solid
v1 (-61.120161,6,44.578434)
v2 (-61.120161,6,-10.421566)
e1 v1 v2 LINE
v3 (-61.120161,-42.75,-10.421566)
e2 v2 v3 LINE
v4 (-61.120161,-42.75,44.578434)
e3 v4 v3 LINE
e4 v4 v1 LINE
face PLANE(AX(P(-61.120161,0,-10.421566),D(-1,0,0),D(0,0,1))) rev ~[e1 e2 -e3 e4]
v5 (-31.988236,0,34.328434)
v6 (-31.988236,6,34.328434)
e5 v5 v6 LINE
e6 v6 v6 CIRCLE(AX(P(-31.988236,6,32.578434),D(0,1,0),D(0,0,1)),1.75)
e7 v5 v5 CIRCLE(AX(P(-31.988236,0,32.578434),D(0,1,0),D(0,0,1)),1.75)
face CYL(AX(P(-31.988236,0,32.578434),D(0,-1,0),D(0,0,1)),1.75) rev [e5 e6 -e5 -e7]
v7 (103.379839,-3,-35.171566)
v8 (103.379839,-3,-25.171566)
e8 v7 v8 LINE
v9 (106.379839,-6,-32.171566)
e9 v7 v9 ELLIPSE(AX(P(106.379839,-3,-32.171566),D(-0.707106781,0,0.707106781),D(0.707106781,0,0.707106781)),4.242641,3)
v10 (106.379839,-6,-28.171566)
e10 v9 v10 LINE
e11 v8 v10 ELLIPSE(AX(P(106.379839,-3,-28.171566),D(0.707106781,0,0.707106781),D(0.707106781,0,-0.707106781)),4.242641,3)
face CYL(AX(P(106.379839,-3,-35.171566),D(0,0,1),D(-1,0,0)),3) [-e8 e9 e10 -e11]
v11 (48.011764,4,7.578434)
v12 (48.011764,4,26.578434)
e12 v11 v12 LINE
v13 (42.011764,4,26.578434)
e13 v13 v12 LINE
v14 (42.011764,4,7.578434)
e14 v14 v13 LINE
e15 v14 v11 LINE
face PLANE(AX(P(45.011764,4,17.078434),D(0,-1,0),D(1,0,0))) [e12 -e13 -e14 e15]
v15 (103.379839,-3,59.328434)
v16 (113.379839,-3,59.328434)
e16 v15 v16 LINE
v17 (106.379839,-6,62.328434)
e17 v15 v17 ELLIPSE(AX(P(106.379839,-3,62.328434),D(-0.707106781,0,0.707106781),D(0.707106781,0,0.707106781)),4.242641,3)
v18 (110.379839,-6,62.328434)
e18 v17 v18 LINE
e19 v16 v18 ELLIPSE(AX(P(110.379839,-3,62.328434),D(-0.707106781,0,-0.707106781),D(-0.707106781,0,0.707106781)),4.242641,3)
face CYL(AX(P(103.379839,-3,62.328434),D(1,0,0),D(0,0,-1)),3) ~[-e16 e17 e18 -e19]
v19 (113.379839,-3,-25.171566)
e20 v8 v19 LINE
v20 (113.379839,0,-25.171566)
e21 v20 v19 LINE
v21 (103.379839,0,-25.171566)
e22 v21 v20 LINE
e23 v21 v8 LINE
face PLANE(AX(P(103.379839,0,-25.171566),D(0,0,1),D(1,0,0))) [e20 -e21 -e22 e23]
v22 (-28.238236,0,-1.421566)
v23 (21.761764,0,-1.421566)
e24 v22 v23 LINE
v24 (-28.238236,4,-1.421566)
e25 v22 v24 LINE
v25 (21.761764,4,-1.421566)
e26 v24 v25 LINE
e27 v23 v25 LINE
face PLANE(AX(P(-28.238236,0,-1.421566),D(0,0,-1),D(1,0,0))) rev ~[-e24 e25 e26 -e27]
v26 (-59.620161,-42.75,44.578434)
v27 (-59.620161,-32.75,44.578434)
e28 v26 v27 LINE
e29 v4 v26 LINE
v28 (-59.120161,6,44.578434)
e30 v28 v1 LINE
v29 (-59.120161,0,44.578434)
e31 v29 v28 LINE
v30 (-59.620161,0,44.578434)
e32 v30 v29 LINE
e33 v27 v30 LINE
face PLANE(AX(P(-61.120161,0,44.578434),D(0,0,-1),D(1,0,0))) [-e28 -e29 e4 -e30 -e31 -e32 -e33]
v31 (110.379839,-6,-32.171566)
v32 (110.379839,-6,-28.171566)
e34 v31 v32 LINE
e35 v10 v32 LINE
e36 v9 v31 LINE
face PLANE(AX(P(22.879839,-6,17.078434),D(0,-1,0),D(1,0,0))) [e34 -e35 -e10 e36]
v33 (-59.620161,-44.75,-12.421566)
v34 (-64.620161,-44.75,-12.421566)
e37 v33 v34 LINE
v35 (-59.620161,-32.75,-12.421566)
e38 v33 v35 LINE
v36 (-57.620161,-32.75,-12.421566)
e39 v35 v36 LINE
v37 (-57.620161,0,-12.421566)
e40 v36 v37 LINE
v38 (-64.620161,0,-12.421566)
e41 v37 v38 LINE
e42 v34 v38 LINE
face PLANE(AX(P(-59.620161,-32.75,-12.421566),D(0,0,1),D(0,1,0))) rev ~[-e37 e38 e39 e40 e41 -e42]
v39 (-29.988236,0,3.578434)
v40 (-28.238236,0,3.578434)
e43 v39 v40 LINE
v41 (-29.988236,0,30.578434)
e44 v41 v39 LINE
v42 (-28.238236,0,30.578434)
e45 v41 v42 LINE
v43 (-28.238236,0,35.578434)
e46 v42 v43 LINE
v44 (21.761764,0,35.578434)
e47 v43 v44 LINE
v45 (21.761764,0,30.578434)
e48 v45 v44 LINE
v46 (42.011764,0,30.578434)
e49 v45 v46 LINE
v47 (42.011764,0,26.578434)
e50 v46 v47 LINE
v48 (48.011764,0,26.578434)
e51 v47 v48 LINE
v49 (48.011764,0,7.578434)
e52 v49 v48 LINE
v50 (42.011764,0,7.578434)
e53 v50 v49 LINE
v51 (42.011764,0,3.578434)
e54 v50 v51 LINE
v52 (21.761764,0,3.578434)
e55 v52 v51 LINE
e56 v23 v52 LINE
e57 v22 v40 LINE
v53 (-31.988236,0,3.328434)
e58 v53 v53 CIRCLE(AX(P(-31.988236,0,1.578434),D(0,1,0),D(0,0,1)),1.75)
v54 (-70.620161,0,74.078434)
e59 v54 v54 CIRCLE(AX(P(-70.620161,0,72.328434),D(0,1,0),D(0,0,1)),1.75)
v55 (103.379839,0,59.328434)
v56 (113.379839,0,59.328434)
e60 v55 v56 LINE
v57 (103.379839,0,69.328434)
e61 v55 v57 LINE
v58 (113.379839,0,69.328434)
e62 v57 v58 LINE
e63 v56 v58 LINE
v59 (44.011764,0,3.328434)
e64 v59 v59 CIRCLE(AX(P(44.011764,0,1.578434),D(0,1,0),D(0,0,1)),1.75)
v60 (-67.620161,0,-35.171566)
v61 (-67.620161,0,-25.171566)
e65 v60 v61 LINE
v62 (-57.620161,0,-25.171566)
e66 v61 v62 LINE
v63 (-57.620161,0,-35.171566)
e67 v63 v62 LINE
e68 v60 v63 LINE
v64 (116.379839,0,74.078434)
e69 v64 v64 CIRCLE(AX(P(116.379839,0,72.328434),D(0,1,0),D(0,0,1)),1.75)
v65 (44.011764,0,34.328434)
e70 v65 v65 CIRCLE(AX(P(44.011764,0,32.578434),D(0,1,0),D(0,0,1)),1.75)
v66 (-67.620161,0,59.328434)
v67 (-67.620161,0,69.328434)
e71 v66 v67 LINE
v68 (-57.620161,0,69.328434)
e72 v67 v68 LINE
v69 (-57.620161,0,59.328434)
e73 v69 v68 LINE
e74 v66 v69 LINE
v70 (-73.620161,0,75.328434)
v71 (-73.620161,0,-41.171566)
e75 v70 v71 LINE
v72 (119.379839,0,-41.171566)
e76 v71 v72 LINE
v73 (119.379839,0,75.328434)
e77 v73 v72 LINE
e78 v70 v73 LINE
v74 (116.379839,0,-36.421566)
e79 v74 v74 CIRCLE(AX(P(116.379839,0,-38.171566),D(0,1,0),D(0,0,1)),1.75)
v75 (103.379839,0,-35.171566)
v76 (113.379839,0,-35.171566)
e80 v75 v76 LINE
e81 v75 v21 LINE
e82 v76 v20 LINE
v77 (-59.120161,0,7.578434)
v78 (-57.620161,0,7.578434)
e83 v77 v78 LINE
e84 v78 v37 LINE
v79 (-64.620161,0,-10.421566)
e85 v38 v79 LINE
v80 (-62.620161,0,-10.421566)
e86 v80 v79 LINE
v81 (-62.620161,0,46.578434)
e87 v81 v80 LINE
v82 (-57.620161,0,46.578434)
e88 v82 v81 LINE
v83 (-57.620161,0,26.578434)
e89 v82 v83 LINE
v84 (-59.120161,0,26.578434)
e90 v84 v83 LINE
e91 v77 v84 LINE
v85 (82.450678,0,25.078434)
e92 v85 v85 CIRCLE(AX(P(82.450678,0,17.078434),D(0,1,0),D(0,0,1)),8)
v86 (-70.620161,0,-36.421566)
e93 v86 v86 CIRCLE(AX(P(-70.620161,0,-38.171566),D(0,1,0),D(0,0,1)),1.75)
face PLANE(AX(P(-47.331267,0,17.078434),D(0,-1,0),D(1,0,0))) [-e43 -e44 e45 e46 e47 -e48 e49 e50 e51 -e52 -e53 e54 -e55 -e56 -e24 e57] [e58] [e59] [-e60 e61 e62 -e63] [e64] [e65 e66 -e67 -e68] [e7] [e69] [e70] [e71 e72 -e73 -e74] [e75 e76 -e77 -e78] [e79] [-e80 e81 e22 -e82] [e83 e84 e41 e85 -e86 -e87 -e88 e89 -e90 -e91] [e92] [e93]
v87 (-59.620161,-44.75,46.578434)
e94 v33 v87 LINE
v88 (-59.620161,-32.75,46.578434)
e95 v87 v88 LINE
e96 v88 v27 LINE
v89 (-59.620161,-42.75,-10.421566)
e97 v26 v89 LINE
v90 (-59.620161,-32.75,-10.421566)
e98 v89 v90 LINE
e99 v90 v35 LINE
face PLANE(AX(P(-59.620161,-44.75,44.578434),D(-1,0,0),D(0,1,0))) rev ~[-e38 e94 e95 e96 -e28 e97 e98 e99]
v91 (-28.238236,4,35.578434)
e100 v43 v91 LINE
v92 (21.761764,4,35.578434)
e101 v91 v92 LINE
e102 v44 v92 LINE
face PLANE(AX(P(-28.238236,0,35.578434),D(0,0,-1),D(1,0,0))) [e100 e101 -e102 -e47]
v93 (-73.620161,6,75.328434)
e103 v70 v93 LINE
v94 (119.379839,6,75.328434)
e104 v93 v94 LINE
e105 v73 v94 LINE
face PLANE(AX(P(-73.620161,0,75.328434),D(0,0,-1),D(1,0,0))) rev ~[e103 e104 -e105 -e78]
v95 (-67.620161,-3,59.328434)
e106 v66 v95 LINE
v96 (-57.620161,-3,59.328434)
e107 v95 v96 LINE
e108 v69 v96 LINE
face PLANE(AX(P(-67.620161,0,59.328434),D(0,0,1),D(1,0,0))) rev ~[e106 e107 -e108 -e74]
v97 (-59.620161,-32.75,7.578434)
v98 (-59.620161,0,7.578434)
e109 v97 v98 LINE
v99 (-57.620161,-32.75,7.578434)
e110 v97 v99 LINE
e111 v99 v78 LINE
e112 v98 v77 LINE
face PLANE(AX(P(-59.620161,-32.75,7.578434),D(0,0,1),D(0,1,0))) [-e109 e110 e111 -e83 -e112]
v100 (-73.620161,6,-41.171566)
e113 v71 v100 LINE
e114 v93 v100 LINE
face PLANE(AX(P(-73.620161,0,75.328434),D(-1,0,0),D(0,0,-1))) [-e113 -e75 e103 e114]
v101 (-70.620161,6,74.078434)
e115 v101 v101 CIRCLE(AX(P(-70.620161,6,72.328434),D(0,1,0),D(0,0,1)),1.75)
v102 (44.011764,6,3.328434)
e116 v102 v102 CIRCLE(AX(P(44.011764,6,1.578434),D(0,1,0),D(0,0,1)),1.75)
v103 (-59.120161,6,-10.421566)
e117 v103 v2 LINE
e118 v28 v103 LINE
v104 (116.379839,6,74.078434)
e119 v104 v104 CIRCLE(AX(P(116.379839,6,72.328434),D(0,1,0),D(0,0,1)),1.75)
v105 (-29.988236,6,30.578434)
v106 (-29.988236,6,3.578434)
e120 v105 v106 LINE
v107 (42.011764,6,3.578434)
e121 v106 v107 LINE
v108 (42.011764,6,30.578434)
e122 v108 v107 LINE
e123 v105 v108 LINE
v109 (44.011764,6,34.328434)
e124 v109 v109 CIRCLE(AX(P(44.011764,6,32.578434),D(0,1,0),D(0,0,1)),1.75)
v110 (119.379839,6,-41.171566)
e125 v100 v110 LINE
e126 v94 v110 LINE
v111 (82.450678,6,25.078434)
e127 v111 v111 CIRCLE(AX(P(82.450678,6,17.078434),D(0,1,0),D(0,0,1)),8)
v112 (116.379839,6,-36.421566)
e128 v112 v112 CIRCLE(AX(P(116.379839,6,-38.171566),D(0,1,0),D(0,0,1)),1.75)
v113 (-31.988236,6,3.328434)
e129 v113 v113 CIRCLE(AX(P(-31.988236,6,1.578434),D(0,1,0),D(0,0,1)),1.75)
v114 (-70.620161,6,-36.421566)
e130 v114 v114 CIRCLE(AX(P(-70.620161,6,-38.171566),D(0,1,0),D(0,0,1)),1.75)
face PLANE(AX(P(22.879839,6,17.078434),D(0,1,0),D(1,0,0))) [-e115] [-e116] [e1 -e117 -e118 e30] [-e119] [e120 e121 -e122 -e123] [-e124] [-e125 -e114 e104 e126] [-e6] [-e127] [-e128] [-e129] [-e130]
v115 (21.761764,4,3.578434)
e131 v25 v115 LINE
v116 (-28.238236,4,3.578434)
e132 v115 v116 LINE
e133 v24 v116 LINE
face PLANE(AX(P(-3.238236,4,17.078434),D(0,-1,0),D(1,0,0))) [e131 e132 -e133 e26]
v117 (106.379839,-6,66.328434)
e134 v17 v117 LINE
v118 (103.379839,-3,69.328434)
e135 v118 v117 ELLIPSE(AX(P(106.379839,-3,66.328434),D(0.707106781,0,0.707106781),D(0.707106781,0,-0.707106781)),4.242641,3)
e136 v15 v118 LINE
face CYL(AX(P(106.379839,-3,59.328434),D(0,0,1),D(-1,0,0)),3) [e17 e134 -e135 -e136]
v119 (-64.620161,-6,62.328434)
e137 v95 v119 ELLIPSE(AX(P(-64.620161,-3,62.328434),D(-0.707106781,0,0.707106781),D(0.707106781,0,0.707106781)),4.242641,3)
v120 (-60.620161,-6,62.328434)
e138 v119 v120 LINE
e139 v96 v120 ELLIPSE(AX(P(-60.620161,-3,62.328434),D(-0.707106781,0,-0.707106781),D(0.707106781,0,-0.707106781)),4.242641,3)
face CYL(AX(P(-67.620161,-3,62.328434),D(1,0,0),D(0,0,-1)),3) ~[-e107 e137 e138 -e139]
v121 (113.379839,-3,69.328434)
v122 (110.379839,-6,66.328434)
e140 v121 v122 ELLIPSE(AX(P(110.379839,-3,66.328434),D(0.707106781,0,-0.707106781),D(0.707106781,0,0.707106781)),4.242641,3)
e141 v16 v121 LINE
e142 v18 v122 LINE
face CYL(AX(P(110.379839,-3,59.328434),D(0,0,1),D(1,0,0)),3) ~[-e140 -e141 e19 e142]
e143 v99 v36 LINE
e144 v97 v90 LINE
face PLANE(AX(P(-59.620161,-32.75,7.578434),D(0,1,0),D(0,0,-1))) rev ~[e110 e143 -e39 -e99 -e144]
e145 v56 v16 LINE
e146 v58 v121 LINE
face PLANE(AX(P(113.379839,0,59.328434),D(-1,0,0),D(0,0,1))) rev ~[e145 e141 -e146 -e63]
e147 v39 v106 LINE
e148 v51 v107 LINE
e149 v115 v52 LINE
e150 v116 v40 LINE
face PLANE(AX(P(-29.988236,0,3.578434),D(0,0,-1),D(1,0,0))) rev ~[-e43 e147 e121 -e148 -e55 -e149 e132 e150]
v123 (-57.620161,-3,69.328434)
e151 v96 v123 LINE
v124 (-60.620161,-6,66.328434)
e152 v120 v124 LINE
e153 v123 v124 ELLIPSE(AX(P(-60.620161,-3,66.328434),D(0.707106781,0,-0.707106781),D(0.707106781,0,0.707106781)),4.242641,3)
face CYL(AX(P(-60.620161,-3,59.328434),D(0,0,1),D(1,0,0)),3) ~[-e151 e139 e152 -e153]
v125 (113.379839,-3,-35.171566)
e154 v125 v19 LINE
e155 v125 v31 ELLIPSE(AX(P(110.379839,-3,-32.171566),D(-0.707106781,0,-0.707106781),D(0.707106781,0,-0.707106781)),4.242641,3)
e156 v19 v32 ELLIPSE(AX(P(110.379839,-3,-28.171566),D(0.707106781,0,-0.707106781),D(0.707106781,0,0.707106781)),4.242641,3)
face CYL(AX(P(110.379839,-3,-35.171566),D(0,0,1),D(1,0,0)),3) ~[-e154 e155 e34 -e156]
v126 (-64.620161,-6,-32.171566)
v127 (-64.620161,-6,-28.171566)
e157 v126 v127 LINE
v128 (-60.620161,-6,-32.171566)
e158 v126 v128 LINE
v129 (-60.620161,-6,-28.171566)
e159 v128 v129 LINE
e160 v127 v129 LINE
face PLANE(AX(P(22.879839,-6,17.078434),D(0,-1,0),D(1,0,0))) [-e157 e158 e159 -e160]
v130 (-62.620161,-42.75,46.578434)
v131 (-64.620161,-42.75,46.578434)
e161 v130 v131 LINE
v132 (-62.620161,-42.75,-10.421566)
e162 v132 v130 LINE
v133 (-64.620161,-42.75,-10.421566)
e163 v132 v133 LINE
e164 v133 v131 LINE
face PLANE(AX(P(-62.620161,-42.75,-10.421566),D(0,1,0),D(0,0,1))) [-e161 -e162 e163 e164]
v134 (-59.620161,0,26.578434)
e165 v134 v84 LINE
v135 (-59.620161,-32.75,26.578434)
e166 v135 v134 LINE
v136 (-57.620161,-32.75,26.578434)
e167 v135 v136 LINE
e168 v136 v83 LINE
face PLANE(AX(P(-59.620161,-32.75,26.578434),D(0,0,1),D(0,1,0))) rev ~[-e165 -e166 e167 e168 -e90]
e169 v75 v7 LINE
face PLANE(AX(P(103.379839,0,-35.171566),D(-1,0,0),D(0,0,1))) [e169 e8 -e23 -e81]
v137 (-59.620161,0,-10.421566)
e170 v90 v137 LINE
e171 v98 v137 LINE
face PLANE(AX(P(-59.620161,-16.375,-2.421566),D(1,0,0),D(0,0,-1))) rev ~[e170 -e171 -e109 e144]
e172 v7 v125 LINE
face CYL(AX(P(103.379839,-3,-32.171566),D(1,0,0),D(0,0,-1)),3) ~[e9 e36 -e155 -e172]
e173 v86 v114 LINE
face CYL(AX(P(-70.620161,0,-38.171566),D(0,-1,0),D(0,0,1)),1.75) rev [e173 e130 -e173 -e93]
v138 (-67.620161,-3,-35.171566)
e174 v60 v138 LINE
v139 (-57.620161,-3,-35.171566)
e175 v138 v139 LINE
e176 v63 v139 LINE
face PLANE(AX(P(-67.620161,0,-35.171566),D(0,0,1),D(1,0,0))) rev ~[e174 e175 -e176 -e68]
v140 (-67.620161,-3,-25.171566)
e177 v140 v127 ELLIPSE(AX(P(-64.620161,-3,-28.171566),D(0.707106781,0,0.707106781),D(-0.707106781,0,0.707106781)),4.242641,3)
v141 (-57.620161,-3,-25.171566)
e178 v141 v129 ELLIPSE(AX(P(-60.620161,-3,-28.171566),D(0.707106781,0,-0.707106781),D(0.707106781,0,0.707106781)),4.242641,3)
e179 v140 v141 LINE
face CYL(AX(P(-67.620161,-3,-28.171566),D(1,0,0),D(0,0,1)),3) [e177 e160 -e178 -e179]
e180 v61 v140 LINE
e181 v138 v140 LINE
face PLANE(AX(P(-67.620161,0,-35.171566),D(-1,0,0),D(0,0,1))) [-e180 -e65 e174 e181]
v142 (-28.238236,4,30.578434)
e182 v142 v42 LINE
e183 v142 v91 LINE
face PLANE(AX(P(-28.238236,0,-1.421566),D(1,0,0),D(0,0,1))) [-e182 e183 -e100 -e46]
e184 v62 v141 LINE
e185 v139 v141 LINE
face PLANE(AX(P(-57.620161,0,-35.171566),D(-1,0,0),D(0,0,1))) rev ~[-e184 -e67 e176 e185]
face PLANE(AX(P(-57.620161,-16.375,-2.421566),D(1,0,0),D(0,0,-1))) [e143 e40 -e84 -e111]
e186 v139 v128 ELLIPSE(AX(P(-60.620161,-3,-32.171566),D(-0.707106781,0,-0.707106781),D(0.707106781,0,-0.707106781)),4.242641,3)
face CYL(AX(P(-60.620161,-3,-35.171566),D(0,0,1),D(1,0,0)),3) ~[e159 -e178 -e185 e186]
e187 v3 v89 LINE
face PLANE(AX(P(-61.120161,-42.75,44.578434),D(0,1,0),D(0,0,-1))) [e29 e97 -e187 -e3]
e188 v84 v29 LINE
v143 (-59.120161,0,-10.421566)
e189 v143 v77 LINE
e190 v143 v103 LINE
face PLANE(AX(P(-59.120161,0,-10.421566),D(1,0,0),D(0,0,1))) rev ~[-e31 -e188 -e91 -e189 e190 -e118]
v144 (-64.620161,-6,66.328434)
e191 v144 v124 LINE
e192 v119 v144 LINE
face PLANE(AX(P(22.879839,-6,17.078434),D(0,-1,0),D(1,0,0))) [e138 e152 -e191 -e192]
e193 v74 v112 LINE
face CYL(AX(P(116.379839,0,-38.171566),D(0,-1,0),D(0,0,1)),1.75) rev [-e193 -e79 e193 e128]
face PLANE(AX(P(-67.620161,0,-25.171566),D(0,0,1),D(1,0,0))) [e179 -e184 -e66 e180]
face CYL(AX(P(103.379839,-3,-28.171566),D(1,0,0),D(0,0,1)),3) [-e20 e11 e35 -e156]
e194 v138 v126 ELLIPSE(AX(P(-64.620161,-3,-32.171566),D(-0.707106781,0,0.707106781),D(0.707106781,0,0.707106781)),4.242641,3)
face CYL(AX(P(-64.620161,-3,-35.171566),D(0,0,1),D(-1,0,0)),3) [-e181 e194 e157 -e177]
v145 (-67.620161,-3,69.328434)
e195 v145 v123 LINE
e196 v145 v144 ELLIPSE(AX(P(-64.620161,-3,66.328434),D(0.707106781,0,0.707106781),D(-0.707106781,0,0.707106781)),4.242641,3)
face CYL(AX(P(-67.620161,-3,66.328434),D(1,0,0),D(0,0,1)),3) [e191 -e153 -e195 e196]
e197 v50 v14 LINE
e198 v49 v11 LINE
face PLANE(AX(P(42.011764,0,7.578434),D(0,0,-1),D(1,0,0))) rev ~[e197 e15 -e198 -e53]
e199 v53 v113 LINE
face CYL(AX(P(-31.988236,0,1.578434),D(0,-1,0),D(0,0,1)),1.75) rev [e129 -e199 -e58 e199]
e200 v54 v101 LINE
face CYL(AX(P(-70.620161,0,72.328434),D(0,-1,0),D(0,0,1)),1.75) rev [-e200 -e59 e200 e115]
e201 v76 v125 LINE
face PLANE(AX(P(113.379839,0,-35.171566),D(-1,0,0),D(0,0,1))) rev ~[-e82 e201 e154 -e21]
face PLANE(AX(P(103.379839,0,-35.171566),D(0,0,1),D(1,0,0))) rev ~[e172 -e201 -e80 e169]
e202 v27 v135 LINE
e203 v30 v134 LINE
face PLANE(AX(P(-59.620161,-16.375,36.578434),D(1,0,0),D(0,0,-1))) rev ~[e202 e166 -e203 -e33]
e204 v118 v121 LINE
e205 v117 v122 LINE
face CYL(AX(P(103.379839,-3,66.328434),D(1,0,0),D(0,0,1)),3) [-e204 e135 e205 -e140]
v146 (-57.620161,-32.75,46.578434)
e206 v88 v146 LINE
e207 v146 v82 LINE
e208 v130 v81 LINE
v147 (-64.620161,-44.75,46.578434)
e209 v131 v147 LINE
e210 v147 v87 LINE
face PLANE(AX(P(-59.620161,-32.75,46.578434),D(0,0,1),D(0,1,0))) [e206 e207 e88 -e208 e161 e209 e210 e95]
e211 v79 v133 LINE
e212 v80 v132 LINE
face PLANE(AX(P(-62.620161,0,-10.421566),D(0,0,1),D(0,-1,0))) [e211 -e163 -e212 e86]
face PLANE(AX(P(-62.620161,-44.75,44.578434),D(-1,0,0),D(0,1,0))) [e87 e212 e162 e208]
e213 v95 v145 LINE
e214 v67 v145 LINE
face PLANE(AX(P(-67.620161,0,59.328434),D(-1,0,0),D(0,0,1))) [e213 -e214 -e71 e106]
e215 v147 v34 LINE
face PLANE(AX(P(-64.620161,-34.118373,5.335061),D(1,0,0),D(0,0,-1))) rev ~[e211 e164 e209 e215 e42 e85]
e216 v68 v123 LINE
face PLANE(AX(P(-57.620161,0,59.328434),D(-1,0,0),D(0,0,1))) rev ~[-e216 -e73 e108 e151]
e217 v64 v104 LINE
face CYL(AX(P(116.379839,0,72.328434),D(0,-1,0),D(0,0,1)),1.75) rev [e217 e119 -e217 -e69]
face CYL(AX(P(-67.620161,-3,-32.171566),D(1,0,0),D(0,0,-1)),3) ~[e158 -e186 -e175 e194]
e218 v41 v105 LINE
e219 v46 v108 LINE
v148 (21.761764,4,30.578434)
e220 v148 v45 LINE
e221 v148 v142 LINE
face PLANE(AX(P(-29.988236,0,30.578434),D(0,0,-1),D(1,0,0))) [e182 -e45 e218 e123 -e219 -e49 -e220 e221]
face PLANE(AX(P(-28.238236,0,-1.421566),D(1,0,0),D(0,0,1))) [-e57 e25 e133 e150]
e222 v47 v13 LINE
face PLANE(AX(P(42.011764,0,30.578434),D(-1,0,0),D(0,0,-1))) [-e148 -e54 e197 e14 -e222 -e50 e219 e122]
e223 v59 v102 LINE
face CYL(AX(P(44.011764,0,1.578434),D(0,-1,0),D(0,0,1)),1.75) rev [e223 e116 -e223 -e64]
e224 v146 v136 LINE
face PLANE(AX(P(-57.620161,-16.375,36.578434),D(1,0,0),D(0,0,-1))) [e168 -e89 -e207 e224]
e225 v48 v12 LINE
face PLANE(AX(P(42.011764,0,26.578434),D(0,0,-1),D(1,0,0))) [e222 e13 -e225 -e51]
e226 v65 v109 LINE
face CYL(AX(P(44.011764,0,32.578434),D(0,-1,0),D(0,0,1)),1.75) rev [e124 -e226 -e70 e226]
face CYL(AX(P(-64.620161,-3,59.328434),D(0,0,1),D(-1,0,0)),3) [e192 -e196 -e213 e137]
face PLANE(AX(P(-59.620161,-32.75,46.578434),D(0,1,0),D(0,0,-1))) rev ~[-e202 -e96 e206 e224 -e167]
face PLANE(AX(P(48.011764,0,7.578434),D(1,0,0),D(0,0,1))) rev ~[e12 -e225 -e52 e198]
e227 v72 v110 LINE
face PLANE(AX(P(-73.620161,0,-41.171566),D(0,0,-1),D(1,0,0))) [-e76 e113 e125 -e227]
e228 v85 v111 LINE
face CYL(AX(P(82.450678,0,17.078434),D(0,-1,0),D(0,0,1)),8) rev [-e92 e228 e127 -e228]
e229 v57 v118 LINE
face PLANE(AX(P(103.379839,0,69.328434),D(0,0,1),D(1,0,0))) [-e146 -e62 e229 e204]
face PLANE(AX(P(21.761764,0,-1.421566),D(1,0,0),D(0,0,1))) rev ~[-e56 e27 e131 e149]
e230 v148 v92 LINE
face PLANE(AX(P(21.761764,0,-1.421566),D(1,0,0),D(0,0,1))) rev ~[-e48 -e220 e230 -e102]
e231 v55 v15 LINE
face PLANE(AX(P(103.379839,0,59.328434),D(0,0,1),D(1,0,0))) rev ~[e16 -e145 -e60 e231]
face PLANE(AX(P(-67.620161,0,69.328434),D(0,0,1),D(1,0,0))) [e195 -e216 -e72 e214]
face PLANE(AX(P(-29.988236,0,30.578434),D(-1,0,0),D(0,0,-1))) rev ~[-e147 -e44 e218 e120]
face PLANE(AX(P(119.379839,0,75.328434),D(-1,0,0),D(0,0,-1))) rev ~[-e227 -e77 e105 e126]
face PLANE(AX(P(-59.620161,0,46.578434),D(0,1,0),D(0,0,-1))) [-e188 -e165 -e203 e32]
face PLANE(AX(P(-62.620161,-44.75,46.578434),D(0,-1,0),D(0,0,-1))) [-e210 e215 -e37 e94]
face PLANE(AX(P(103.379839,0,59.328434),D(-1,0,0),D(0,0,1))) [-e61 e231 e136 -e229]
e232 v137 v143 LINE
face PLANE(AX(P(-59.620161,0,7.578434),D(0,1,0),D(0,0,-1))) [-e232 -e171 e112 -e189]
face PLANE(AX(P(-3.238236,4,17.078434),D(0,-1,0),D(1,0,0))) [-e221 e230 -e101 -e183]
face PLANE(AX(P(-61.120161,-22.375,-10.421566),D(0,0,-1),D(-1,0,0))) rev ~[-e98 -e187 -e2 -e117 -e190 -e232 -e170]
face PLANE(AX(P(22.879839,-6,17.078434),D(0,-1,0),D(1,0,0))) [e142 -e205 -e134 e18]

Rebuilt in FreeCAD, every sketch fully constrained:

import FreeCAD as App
import Part
import Sketcher

V = App.Vector
Q = App.Units.Quantity


def edges_at(feature, points):
    """Names of the edges that pass closest to the given points."""
    edges = feature.Shape.Edges
    near = lambda p: min(range(len(edges)), key=lambda i: edges[i].distToShape(Part.Vertex(*p))[0])
    return sorted({f"Edge{near(p) + 1}" for p in points})


def add_polygon(sketch, points):
    """Adds a closed chain of lines whose ends are joined by coincident constraints."""
    first, n = sketch.GeometryCount, len(points)
    for a, b in zip(points, points[1:] + points[:1]):
        sketch.addGeometry(Part.LineSegment(App.Vector(*a, 0), App.Vector(*b, 0)), False)
    for i in range(n):
        sketch.addConstraint(Sketcher.Constraint("Coincident", first + i, 2, first + (i + 1) % n, 1))

doc = App.newDocument("Part")
body = doc.addObject("PartDesign::Body", "Body")

# Sketch on XZ plane
sketch1 = doc.addObject("Sketcher::SketchObject", "Sketch")
body.addObject(sketch1)
sketch1.AttachmentSupport = (doc.XZ_Plane, [""])
sketch1.MapMode = "FlatFace"
add_polygon(sketch1, [(-73.6, -41.2), (-73.6, 75.3), (119.4, 75.3), (119.4, -41.2)])  # lines 0-3
sketch1.addGeometry(Part.Circle(V(-70.6, 72.3, 0), V(0, 0, 1), 1.8), False)  # 4
sketch1.addGeometry(Part.Circle(V(-32, 32.6, 0), V(0, 0, 1), 1.8), False)  # 5
sketch1.addGeometry(Part.Circle(V(116.4, 72.3, 0), V(0, 0, 1), 1.8), False)  # 6
sketch1.addGeometry(Part.Circle(V(44, 32.6, 0), V(0, 0, 1), 1.8), False)  # 7
add_polygon(sketch1, [(-46.3, 44.6), (-48.3, 44.6), (-48.3, -10.4), (-46.3, -10.4)])  # lines 8-11
sketch1.addGeometry(Part.Circle(V(-32, 1.6, 0), V(0, 0, 1), 1.8), False)  # 12
add_polygon(sketch1, [(42, 30.6), (-30, 30.6), (-30, 3.6), (42, 3.6)])  # lines 13-16
sketch1.addGeometry(Part.Circle(V(-70.6, -38.2, 0), V(0, 0, 1), 1.8), False)  # 17
sketch1.addGeometry(Part.Circle(V(44, 1.6, 0), V(0, 0, 1), 1.8), False)  # 18
sketch1.addGeometry(Part.Circle(V(82.5, 17.1, 0), V(0, 0, 1), 8), False)  # 19
sketch1.addGeometry(Part.Circle(V(116.4, -38.2, 0), V(0, 0, 1), 1.8), False)  # 20
sketch1.addConstraint(Sketcher.Constraint("Vertical", 0))
sketch1.addConstraint(Sketcher.Constraint("Horizontal", 1))
sketch1.addConstraint(Sketcher.Constraint("Vertical", 2))
sketch1.addConstraint(Sketcher.Constraint("Horizontal", 3))
sketch1.addConstraint(Sketcher.Constraint("Horizontal", 8))
sketch1.addConstraint(Sketcher.Constraint("Vertical", 9))
sketch1.addConstraint(Sketcher.Constraint("Horizontal", 10))
sketch1.addConstraint(Sketcher.Constraint("Vertical", 11))
sketch1.addConstraint(Sketcher.Constraint("Horizontal", 13))
sketch1.addConstraint(Sketcher.Constraint("Vertical", 14))
sketch1.addConstraint(Sketcher.Constraint("Horizontal", 15))
sketch1.addConstraint(Sketcher.Constraint("Vertical", 16))
sketch1.addConstraint(Sketcher.Constraint("Equal", 4, 5))
sketch1.addConstraint(Sketcher.Constraint("Equal", 5, 6))
sketch1.addConstraint(Sketcher.Constraint("Equal", 6, 7))
sketch1.addConstraint(Sketcher.Constraint("Equal", 7, 12))
sketch1.addConstraint(Sketcher.Constraint("Equal", 12, 17))
sketch1.addConstraint(Sketcher.Constraint("Equal", 17, 18))
sketch1.addConstraint(Sketcher.Constraint("Equal", 18, 20))
sketch1.addConstraint(Sketcher.Constraint("Horizontal", 4, 3, 6, 3))
sketch1.addConstraint(Sketcher.Constraint("Horizontal", 5, 3, 7, 3))
sketch1.addConstraint(Sketcher.Constraint("Horizontal", 12, 3, 18, 3))
sketch1.addConstraint(Sketcher.Constraint("Horizontal", 17, 3, 20, 3))
sketch1.addConstraint(Sketcher.Constraint("Vertical", 5, 3, 12, 3))
sketch1.addConstraint(Sketcher.Constraint("Vertical", 4, 3, 17, 3))
sketch1.addConstraint(Sketcher.Constraint("Vertical", 7, 3, 18, 3))
sketch1.addConstraint(Sketcher.Constraint("Vertical", 6, 3, 20, 3))
sketch1.addConstraint(Sketcher.Constraint("Diameter", 19, Q("16 mm")))
sketch1.addConstraint(Sketcher.Constraint("Diameter", 4, Q("3.5 mm")))
sketch1.addConstraint(Sketcher.Constraint("DistanceX", 1, 1, 1, 2, Q("193 mm")))
sketch1.addConstraint(Sketcher.Constraint("DistanceX", 8, 2, 8, 1, Q("2 mm")))
sketch1.addConstraint(Sketcher.Constraint("DistanceX", 13, 2, 13, 1, Q("72 mm")))
sketch1.addConstraint(Sketcher.Constraint("DistanceY", 9, 2, 9, 1, Q("55 mm")))
sketch1.addConstraint(Sketcher.Constraint("DistanceY", 14, 2, 14, 1, Q("27 mm")))
sketch1.addConstraint(Sketcher.Constraint("DistanceY", 0, 1, 0, 2, Q("116.5 mm")))
sketch1.addConstraint(Sketcher.Constraint("DistanceX", 4, 3, 6, 3, Q("187 mm")))
sketch1.addConstraint(Sketcher.Constraint("DistanceX", 5, 3, 7, 3, Q("76 mm")))
sketch1.addConstraint(Sketcher.Constraint("DistanceY", 12, 3, 5, 3, Q("31 mm")))
sketch1.addConstraint(Sketcher.Constraint("DistanceX", 0, 2, 4, 3, Q("3 mm")))
sketch1.addConstraint(Sketcher.Constraint("DistanceY", 4, 3, 0, 2, Q("3 mm")))
sketch1.addConstraint(Sketcher.Constraint("DistanceY", 2, 2, 20, 3, Q("3 mm")))
sketch1.addConstraint(Sketcher.Constraint("DistanceY", 5, 3, 8, 2, Q("12 mm")))
sketch1.addConstraint(Sketcher.Constraint("DistanceX", 5, 3, 13, 2, Q("2 mm")))
sketch1.addConstraint(Sketcher.Constraint("DistanceY", 13, 2, 5, 3, Q("2 mm")))
sketch1.addConstraint(Sketcher.Constraint("DistanceY", 19, 3, 7, 3, Q("15.5 mm")))
sketch1.addConstraint(Sketcher.Constraint("DistanceY", 5, 3, 4, 3, Q("39.75 mm")))
sketch1.addConstraint(Sketcher.Constraint("DistanceX", 4, 3, -1, 1, Q("70.620161 mm")))
sketch1.addConstraint(Sketcher.Constraint("DistanceX", -1, 1, 19, 3, Q("82.450678 mm")))
sketch1.addConstraint(Sketcher.Constraint("DistanceX", 8, 2, 5, 3, Q("16.343031 mm")))
sketch1.addConstraint(Sketcher.Constraint("DistanceY", -1, 1, 4, 3, Q("72.328434 mm")))
sketch1.addConstraint(Sketcher.Constraint("DistanceX", 5, 3, -1, 1, Q("31.988236 mm")))
pad1 = doc.addObject("PartDesign::Pad", "Pad")
body.addObject(pad1)
pad1.Profile = sketch1
pad1.Length = 6
pad1.Reversed = True

# Sketch on XZ plane
sketch2 = doc.addObject("Sketcher::SketchObject", "Sketch001")
body.addObject(sketch2)
sketch2.AttachmentSupport = (doc.XZ_Plane, [""])
sketch2.MapMode = "FlatFace"
add_polygon(sketch2, [(-68, 69), (-68, 59), (-58, 59), (-58, 69)])  # lines 0-3
add_polygon(sketch2, [(-68, -25), (-68, -35), (-58, -35), (-58, -25)])  # lines 4-7
add_polygon(sketch2, [(103, -25), (103, -35), (113, -35), (113, -25)])  # lines 8-11
add_polygon(sketch2, [(103, 69), (103, 59), (113, 59), (113, 69)])  # lines 12-15
sketch2.addConstraint(Sketcher.Constraint("Vertical", 0))
sketch2.addConstraint(Sketcher.Constraint("Horizontal", 1))
sketch2.addConstraint(Sketcher.Constraint("Vertical", 2))
sketch2.addConstraint(Sketcher.Constraint("Horizontal", 3))
sketch2.addConstraint(Sketcher.Constraint("Vertical", 4))
sketch2.addConstraint(Sketcher.Constraint("Horizontal", 5))
sketch2.addConstraint(Sketcher.Constraint("Vertical", 6))
sketch2.addConstraint(Sketcher.Constraint("Horizontal", 7))
sketch2.addConstraint(Sketcher.Constraint("Vertical", 8))
sketch2.addConstraint(Sketcher.Constraint("Horizontal", 9))
sketch2.addConstraint(Sketcher.Constraint("Vertical", 10))
sketch2.addConstraint(Sketcher.Constraint("Horizontal", 11))
sketch2.addConstraint(Sketcher.Constraint("Vertical", 12))
sketch2.addConstraint(Sketcher.Constraint("Horizontal", 13))
sketch2.addConstraint(Sketcher.Constraint("Vertical", 14))
sketch2.addConstraint(Sketcher.Constraint("Horizontal", 15))
sketch2.addConstraint(Sketcher.Constraint("Horizontal", 5, 2, 8, 2))
sketch2.addConstraint(Sketcher.Constraint("Horizontal", 7, 2, 10, 2))
sketch2.addConstraint(Sketcher.Constraint("Horizontal", 1, 2, 12, 2))
sketch2.addConstraint(Sketcher.Constraint("Horizontal", 3, 2, 14, 2))
sketch2.addConstraint(Sketcher.Constraint("Vertical", 3, 2, 4, 2))
sketch2.addConstraint(Sketcher.Constraint("Vertical", 2, 2, 5, 2))
sketch2.addConstraint(Sketcher.Constraint("Vertical", 11, 2, 12, 2))
sketch2.addConstraint(Sketcher.Constraint("Vertical", 10, 2, 13, 2))
sketch2.addConstraint(Sketcher.Constraint("Equal", 7, 9))
sketch2.addConstraint(Sketcher.Constraint("Equal", 15, 0))
sketch2.addConstraint(Sketcher.Constraint("Equal", 2, 4))
sketch2.addConstraint(Sketcher.Constraint("DistanceX", 1, 1, 1, 2, Q("10 mm")))
sketch2.addConstraint(Sketcher.Constraint("DistanceX", 5, 2, 8, 2, Q("161 mm")))
sketch2.addConstraint(Sketcher.Constraint("DistanceY", 4, 2, 0, 2, Q("94.5 mm")))
sketch2.addConstraint(Sketcher.Constraint("DistanceX", 0, 2, -1, 1, Q("67.620161 mm")))
sketch2.addConstraint(Sketcher.Constraint("DistanceY", -1, 1, 0, 2, Q("59.328434 mm")))
pad2 = doc.addObject("PartDesign::Pad", "Pad001")
body.addObject(pad2)
pad2.Profile = sketch2
pad2.Length = 10

# Sketch on XZ plane
sketch3 = doc.addObject("Sketcher::SketchObject", "Sketch002")
body.addObject(sketch3)
sketch3.AttachmentSupport = (doc.XZ_Plane, [""])
sketch3.MapMode = "FlatFace"
add_polygon(sketch3, [(-48.3, 44.6), (-48.3, -10.4), (-46.3, -10.4), (-46.3, 44.6)])  # lines 0-3
sketch3.addConstraint(Sketcher.Constraint("Vertical", 0))
sketch3.addConstraint(Sketcher.Constraint("Horizontal", 1))
sketch3.addConstraint(Sketcher.Constraint("Vertical", 2))
sketch3.addConstraint(Sketcher.Constraint("Horizontal", 3))
sketch3.addConstraint(Sketcher.Constraint("DistanceX", 1, 1, 1, 2, Q("2 mm")))
sketch3.addConstraint(Sketcher.Constraint("DistanceY", 0, 2, 0, 1, Q("55 mm")))
sketch3.addConstraint(Sketcher.Constraint("DistanceX", 0, 2, -1, 1, Q("48.331267 mm")))
sketch3.addConstraint(Sketcher.Constraint("DistanceY", 0, 2, -1, 1, Q("10.421566 mm")))
pad3 = doc.addObject("PartDesign::Pad", "Pad002")
body.addObject(pad3)
pad3.Profile = sketch3
pad3.Length = 6
pad3.Reversed = True

# Sketch on XZ plane
sketch4 = doc.addObject("Sketcher::SketchObject", "Sketch003")
body.addObject(sketch4)
sketch4.AttachmentSupport = (doc.XZ_Plane, [""])
sketch4.MapMode = "FlatFace"
sketch4.AttachmentOffset = App.Placement(V(0, 0, 10), App.Rotation())
add_polygon(sketch4, [(-68, 69), (-68, -35), (113, -35), (113, 69)])  # lines 0-3
sketch4.addConstraint(Sketcher.Constraint("Vertical", 0))
sketch4.addConstraint(Sketcher.Constraint("Horizontal", 1))
sketch4.addConstraint(Sketcher.Constraint("Vertical", 2))
sketch4.addConstraint(Sketcher.Constraint("Horizontal", 3))
sketch4.addConstraint(Sketcher.Constraint("DistanceX", 1, 1, 1, 2, Q("181 mm")))
sketch4.addConstraint(Sketcher.Constraint("DistanceY", 0, 2, 0, 1, Q("104.5 mm")))
sketch4.addConstraint(Sketcher.Constraint("DistanceX", 0, 2, -1, 1, Q("67.620161 mm")))
sketch4.addConstraint(Sketcher.Constraint("DistanceY", 0, 2, -1, 1, Q("35.171566 mm")))
pocket1 = doc.addObject("PartDesign::Pocket", "Pocket")
body.addObject(pocket1)
pocket1.Profile = sketch4
pocket1.Length = 4

# Sketch on XZ plane
sketch5 = doc.addObject("Sketcher::SketchObject", "Sketch004")
body.addObject(sketch5)
sketch5.AttachmentSupport = (doc.XZ_Plane, [""])
sketch5.MapMode = "FlatFace"
add_polygon(sketch5, [(-62.6, 44.6), (-62.6, -10.4), (-61.1, -10.4), (-61.1, 44.6)])  # lines 0-3
sketch5.addConstraint(Sketcher.Constraint("Vertical", 0))
sketch5.addConstraint(Sketcher.Constraint("Horizontal", 1))
sketch5.addConstraint(Sketcher.Constraint("Vertical", 2))
sketch5.addConstraint(Sketcher.Constraint("Horizontal", 3))
sketch5.addConstraint(Sketcher.Constraint("DistanceY", 0, 2, 0, 1, Q("55 mm")))
sketch5.addConstraint(Sketcher.Constraint("DistanceX", 1, 1, 1, 2, Q("1.5 mm")))
sketch5.addConstraint(Sketcher.Constraint("DistanceX", 0, 2, -1, 1, Q("62.620161 mm")))
sketch5.addConstraint(Sketcher.Constraint("DistanceY", 0, 2, -1, 1, Q("10.421566 mm")))
pad4 = doc.addObject("PartDesign::Pad", "Pad003")
body.addObject(pad4)
pad4.Profile = sketch5
pad4.Length = 44.75

# Sketch on XZ plane
sketch6 = doc.addObject("Sketcher::SketchObject", "Sketch005")
body.addObject(sketch6)
sketch6.AttachmentSupport = (doc.XZ_Plane, [""])
sketch6.MapMode = "FlatFace"
add_polygon(sketch6, [(-61.1, 44.6), (-61.1, -10.4), (-59.1, -10.4), (-59.1, 44.6)])  # lines 0-3
sketch6.addConstraint(Sketcher.Constraint("Vertical", 0))
sketch6.addConstraint(Sketcher.Constraint("Horizontal", 1))
sketch6.addConstraint(Sketcher.Constraint("Vertical", 2))
sketch6.addConstraint(Sketcher.Constraint("Horizontal", 3))
sketch6.addConstraint(Sketcher.Constraint("DistanceX", 1, 1, 1, 2, Q("2 mm")))
sketch6.addConstraint(Sketcher.Constraint("DistanceY", 0, 2, 0, 1, Q("55 mm")))
sketch6.addConstraint(Sketcher.Constraint("DistanceX", 0, 2, -1, 1, Q("61.120161 mm")))
sketch6.addConstraint(Sketcher.Constraint("DistanceY", 0, 2, -1, 1, Q("10.421566 mm")))
pocket2 = doc.addObject("PartDesign::Pocket", "Pocket001")
body.addObject(pocket2)
pocket2.Profile = sketch6
pocket2.Length = 42.25

# Sketch on XZ plane
sketch7 = doc.addObject("Sketcher::SketchObject", "Sketch006")
body.addObject(sketch7)
sketch7.AttachmentSupport = (doc.XZ_Plane, [""])
sketch7.MapMode = "FlatFace"
add_polygon(sketch7, [(42, 27), (42, 8), (48, 8), (48, 27)])  # lines 0-3
sketch7.addConstraint(Sketcher.Constraint("Vertical", 0))
sketch7.addConstraint(Sketcher.Constraint("Horizontal", 1))
sketch7.addConstraint(Sketcher.Constraint("Vertical", 2))
sketch7.addConstraint(Sketcher.Constraint("Horizontal", 3))
sketch7.addConstraint(Sketcher.Constraint("DistanceX", 1, 1, 1, 2, Q("6 mm")))
sketch7.addConstraint(Sketcher.Constraint("DistanceY", 0, 2, 0, 1, Q("19 mm")))
sketch7.addConstraint(Sketcher.Constraint("DistanceX", -1, 1, 0, 2, Q("42.011764 mm")))
sketch7.addConstraint(Sketcher.Constraint("DistanceY", -1, 1, 0, 2, Q("7.578434 mm")))
pocket3 = doc.addObject("PartDesign::Pocket", "Pocket002")
body.addObject(pocket3)
pocket3.Profile = sketch7
pocket3.Length = 4
doc.recompute()

fillet = doc.addObject("PartDesign::Fillet", "Fillet")
body.addObject(fillet)
fillet.Base = (pocket3, edges_at(pocket3, [
    (-67.62, -6, 64.328),
    (-67.62, -6, -30.172),
    (-62.62, -6, -35.172),
    (108.38, -6, -35.172),
    (-62.62, -6, 69.328),
    (108.38, -6, 69.328),
    (113.38, -6, -30.172),
    (113.38, -6, 64.328),
    (-62.62, -6, 59.328),
    (-57.62, -6, 64.328),
    (103.38, -6, 64.328),
    (108.38, -6, 59.328),
    (108.38, -6, -25.172),
    (103.38, -6, -30.172),
    (-57.62, -6, -30.172),
    (-62.62, -6, -25.172),
]))
fillet.Radius = 3

# Sketch on YZ plane
sketch8 = doc.addObject("Sketcher::SketchObject", "Sketch007")
body.addObject(sketch8)
sketch8.AttachmentSupport = (doc.YZ_Plane, [""])
sketch8.MapMode = "FlatFace"
sketch8.AttachmentOffset = App.Placement(V(0, 0, -61.120161), App.Rotation())
add_polygon(sketch8, [(-42.8, 44.6), (-44.8, 44.6), (-44.8, -10.4), (-42.8, -10.4)])  # lines 0-3
sketch8.addConstraint(Sketcher.Constraint("Horizontal", 0))
sketch8.addConstraint(Sketcher.Constraint("Vertical", 1))
sketch8.addConstraint(Sketcher.Constraint("Horizontal", 2))
sketch8.addConstraint(Sketcher.Constraint("Vertical", 3))
sketch8.addConstraint(Sketcher.Constraint("DistanceX", 0, 2, 0, 1, Q("2 mm")))
sketch8.addConstraint(Sketcher.Constraint("DistanceY", 1, 2, 1, 1, Q("55 mm")))
sketch8.addConstraint(Sketcher.Constraint("DistanceX", 0, 2, -1, 1, Q("44.75 mm")))
sketch8.addConstraint(Sketcher.Constraint("DistanceY", -1, 1, 0, 2, Q("44.578434 mm")))
pad5 = doc.addObject("PartDesign::Pad", "Pad004")
body.addObject(pad5)
pad5.Profile = sketch8
pad5.Length = 1.5

# Sketch on XY plane
sketch9 = doc.addObject("Sketcher::SketchObject", "Sketch008")
body.addObject(sketch9)
sketch9.AttachmentSupport = (doc.XY_Plane, [""])
sketch9.MapMode = "FlatFace"
sketch9.AttachmentOffset = App.Placement(V(0, 0, -10.421566), App.Rotation())
add_polygon(sketch9, [(-59.6, 0), (-59.6, -44.8), (-62.6, -44.8), (-62.6, 0)])  # lines 0-3
sketch9.addConstraint(Sketcher.Constraint("Vertical", 0))
sketch9.addConstraint(Sketcher.Constraint("Horizontal", 1))
sketch9.addConstraint(Sketcher.Constraint("Vertical", 2))
sketch9.addConstraint(Sketcher.Constraint("Horizontal", 3))
sketch9.addConstraint(Sketcher.Constraint("PointOnObject", 2, 2, -1))
sketch9.addConstraint(Sketcher.Constraint("DistanceX", 1, 2, 1, 1, Q("3 mm")))
sketch9.addConstraint(Sketcher.Constraint("DistanceY", 0, 2, 0, 1, Q("44.75 mm")))
sketch9.addConstraint(Sketcher.Constraint("DistanceX", 0, 2, -1, 1, Q("59.620161 mm")))
pad6 = doc.addObject("PartDesign::Pad", "Pad005")
body.addObject(pad6)
pad6.Profile = sketch9
pad6.Length = 2
pad6.Reversed = True

# Sketch on XY plane
sketch10 = doc.addObject("Sketcher::SketchObject", "Sketch009")
body.addObject(sketch10)
sketch10.AttachmentSupport = (doc.XY_Plane, [""])
sketch10.MapMode = "FlatFace"
sketch10.AttachmentOffset = App.Placement(V(0, 0, 44.578434), App.Rotation())
add_polygon(sketch10, [(-62.6, 0), (-62.6, -44.8), (-59.6, -44.8), (-59.6, 0)])  # lines 0-3
sketch10.addConstraint(Sketcher.Constraint("Vertical", 0))
sketch10.addConstraint(Sketcher.Constraint("Horizontal", 1))
sketch10.addConstraint(Sketcher.Constraint("Vertical", 2))
sketch10.addConstraint(Sketcher.Constraint("Horizontal", 3))
sketch10.addConstraint(Sketcher.Constraint("PointOnObject", 2, 2, -1))
sketch10.addConstraint(Sketcher.Constraint("DistanceX", 1, 1, 1, 2, Q("3 mm")))
sketch10.addConstraint(Sketcher.Constraint("DistanceY", 0, 2, 0, 1, Q("44.75 mm")))
sketch10.addConstraint(Sketcher.Constraint("DistanceX", 0, 2, -1, 1, Q("62.620161 mm")))
pad7 = doc.addObject("PartDesign::Pad", "Pad006")
body.addObject(pad7)
pad7.Profile = sketch10
pad7.Length = 2

# Sketch on YZ plane
sketch11 = doc.addObject("Sketcher::SketchObject", "Sketch010")
body.addObject(sketch11)
sketch11.AttachmentSupport = (doc.YZ_Plane, [""])
sketch11.MapMode = "FlatFace"
sketch11.AttachmentOffset = App.Placement(V(0, 0, -62.620161), App.Rotation())
add_polygon(sketch11, [(-42.8, -10.4), (0, -10.4), (0, -12.4), (-44.8, -12.4), (-44.8, 46.6), (-42.8, 46.6)])  # lines 0-5
sketch11.addConstraint(Sketcher.Constraint("Horizontal", 0))
sketch11.addConstraint(Sketcher.Constraint("Vertical", 1))
sketch11.addConstraint(Sketcher.Constraint("Horizontal", 2))
sketch11.addConstraint(Sketcher.Constraint("Vertical", 3))
sketch11.addConstraint(Sketcher.Constraint("Horizontal", 4))
sketch11.addConstraint(Sketcher.Constraint("Vertical", 5))
sketch11.addConstraint(Sketcher.Constraint("PointOnObject", 0, 2, -2))
sketch11.addConstraint(Sketcher.Constraint("Equal", 4, 1))
sketch11.addConstraint(Sketcher.Constraint("DistanceX", 4, 1, 4, 2, Q("2 mm")))
sketch11.addConstraint(Sketcher.Constraint("DistanceY", 3, 1, 3, 2, Q("59 mm")))
sketch11.addConstraint(Sketcher.Constraint("DistanceX", 0, 1, 0, 2, Q("42.75 mm")))
sketch11.addConstraint(Sketcher.Constraint("DistanceY", 0, 2, -1, 1, Q("10.421566 mm")))
pad8 = doc.addObject("PartDesign::Pad", "Pad007")
body.addObject(pad8)
pad8.Profile = sketch11
pad8.Length = 2
pad8.Reversed = True

# Sketch on YZ plane
sketch12 = doc.addObject("Sketcher::SketchObject", "Sketch011")
body.addObject(sketch12)
sketch12.AttachmentSupport = (doc.YZ_Plane, [""])
sketch12.MapMode = "FlatFace"
sketch12.AttachmentOffset = App.Placement(V(0, 0, -59.620161), App.Rotation())
add_polygon(sketch12, [(0, 47), (-33, 47), (-33, 27), (0, 27)])  # lines 0-3
add_polygon(sketch12, [(0, 8), (-33, 8), (-33, -12), (0, -12)])  # lines 4-7
sketch12.addConstraint(Sketcher.Constraint("Horizontal", 0))
sketch12.addConstraint(Sketcher.Constraint("Vertical", 1))
sketch12.addConstraint(Sketcher.Constraint("Horizontal", 2))
sketch12.addConstraint(Sketcher.Constraint("Vertical", 3))
sketch12.addConstraint(Sketcher.Constraint("Horizontal", 4))
sketch12.addConstraint(Sketcher.Constraint("Vertical", 5))
sketch12.addConstraint(Sketcher.Constraint("Horizontal", 6))
sketch12.addConstraint(Sketcher.Constraint("Vertical", 7))
sketch12.addConstraint(Sketcher.Constraint("PointOnObject", 2, 2, -2))
sketch12.addConstraint(Sketcher.Constraint("PointOnObject", 6, 2, -2))
sketch12.addConstraint(Sketcher.Constraint("Vertical", 1, 2, 4, 2))
sketch12.addConstraint(Sketcher.Constraint("Equal", 3, 5))
sketch12.addConstraint(Sketcher.Constraint("DistanceY", 1, 2, 1, 1, Q("20 mm")))
sketch12.addConstraint(Sketcher.Constraint("DistanceY", 4, 2, 1, 2, Q("19 mm")))
sketch12.addConstraint(Sketcher.Constraint("DistanceX", 0, 2, 0, 1, Q("32.75 mm")))
sketch12.addConstraint(Sketcher.Constraint("DistanceY", -1, 1, 0, 2, Q("46.578434 mm")))
pad9 = doc.addObject("PartDesign::Pad", "Pad008")
body.addObject(pad9)
pad9.Profile = sketch12
pad9.Length = 2

# Sketch on XZ plane
sketch13 = doc.addObject("Sketcher::SketchObject", "Sketch012")
body.addObject(sketch13)
sketch13.AttachmentSupport = (doc.XZ_Plane, [""])
sketch13.MapMode = "FlatFace"
add_polygon(sketch13, [(-28, 36), (-28, -1), (22, -1), (22, 36)])  # lines 0-3
sketch13.addConstraint(Sketcher.Constraint("Vertical", 0))
sketch13.addConstraint(Sketcher.Constraint("Horizontal", 1))
sketch13.addConstraint(Sketcher.Constraint("Vertical", 2))
sketch13.addConstraint(Sketcher.Constraint("Horizontal", 3))
sketch13.addConstraint(Sketcher.Constraint("DistanceX", 1, 1, 1, 2, Q("50 mm")))
sketch13.addConstraint(Sketcher.Constraint("DistanceY", 0, 2, 0, 1, Q("37 mm")))
sketch13.addConstraint(Sketcher.Constraint("DistanceX", 0, 2, -1, 1, Q("28.238236 mm")))
sketch13.addConstraint(Sketcher.Constraint("DistanceY", 0, 2, -1, 1, Q("1.421566 mm")))
pocket4 = doc.addObject("PartDesign::Pocket", "Pocket003")
body.addObject(pocket4)
pocket4.Profile = sketch13
pocket4.Length = 4

doc.recompute()
